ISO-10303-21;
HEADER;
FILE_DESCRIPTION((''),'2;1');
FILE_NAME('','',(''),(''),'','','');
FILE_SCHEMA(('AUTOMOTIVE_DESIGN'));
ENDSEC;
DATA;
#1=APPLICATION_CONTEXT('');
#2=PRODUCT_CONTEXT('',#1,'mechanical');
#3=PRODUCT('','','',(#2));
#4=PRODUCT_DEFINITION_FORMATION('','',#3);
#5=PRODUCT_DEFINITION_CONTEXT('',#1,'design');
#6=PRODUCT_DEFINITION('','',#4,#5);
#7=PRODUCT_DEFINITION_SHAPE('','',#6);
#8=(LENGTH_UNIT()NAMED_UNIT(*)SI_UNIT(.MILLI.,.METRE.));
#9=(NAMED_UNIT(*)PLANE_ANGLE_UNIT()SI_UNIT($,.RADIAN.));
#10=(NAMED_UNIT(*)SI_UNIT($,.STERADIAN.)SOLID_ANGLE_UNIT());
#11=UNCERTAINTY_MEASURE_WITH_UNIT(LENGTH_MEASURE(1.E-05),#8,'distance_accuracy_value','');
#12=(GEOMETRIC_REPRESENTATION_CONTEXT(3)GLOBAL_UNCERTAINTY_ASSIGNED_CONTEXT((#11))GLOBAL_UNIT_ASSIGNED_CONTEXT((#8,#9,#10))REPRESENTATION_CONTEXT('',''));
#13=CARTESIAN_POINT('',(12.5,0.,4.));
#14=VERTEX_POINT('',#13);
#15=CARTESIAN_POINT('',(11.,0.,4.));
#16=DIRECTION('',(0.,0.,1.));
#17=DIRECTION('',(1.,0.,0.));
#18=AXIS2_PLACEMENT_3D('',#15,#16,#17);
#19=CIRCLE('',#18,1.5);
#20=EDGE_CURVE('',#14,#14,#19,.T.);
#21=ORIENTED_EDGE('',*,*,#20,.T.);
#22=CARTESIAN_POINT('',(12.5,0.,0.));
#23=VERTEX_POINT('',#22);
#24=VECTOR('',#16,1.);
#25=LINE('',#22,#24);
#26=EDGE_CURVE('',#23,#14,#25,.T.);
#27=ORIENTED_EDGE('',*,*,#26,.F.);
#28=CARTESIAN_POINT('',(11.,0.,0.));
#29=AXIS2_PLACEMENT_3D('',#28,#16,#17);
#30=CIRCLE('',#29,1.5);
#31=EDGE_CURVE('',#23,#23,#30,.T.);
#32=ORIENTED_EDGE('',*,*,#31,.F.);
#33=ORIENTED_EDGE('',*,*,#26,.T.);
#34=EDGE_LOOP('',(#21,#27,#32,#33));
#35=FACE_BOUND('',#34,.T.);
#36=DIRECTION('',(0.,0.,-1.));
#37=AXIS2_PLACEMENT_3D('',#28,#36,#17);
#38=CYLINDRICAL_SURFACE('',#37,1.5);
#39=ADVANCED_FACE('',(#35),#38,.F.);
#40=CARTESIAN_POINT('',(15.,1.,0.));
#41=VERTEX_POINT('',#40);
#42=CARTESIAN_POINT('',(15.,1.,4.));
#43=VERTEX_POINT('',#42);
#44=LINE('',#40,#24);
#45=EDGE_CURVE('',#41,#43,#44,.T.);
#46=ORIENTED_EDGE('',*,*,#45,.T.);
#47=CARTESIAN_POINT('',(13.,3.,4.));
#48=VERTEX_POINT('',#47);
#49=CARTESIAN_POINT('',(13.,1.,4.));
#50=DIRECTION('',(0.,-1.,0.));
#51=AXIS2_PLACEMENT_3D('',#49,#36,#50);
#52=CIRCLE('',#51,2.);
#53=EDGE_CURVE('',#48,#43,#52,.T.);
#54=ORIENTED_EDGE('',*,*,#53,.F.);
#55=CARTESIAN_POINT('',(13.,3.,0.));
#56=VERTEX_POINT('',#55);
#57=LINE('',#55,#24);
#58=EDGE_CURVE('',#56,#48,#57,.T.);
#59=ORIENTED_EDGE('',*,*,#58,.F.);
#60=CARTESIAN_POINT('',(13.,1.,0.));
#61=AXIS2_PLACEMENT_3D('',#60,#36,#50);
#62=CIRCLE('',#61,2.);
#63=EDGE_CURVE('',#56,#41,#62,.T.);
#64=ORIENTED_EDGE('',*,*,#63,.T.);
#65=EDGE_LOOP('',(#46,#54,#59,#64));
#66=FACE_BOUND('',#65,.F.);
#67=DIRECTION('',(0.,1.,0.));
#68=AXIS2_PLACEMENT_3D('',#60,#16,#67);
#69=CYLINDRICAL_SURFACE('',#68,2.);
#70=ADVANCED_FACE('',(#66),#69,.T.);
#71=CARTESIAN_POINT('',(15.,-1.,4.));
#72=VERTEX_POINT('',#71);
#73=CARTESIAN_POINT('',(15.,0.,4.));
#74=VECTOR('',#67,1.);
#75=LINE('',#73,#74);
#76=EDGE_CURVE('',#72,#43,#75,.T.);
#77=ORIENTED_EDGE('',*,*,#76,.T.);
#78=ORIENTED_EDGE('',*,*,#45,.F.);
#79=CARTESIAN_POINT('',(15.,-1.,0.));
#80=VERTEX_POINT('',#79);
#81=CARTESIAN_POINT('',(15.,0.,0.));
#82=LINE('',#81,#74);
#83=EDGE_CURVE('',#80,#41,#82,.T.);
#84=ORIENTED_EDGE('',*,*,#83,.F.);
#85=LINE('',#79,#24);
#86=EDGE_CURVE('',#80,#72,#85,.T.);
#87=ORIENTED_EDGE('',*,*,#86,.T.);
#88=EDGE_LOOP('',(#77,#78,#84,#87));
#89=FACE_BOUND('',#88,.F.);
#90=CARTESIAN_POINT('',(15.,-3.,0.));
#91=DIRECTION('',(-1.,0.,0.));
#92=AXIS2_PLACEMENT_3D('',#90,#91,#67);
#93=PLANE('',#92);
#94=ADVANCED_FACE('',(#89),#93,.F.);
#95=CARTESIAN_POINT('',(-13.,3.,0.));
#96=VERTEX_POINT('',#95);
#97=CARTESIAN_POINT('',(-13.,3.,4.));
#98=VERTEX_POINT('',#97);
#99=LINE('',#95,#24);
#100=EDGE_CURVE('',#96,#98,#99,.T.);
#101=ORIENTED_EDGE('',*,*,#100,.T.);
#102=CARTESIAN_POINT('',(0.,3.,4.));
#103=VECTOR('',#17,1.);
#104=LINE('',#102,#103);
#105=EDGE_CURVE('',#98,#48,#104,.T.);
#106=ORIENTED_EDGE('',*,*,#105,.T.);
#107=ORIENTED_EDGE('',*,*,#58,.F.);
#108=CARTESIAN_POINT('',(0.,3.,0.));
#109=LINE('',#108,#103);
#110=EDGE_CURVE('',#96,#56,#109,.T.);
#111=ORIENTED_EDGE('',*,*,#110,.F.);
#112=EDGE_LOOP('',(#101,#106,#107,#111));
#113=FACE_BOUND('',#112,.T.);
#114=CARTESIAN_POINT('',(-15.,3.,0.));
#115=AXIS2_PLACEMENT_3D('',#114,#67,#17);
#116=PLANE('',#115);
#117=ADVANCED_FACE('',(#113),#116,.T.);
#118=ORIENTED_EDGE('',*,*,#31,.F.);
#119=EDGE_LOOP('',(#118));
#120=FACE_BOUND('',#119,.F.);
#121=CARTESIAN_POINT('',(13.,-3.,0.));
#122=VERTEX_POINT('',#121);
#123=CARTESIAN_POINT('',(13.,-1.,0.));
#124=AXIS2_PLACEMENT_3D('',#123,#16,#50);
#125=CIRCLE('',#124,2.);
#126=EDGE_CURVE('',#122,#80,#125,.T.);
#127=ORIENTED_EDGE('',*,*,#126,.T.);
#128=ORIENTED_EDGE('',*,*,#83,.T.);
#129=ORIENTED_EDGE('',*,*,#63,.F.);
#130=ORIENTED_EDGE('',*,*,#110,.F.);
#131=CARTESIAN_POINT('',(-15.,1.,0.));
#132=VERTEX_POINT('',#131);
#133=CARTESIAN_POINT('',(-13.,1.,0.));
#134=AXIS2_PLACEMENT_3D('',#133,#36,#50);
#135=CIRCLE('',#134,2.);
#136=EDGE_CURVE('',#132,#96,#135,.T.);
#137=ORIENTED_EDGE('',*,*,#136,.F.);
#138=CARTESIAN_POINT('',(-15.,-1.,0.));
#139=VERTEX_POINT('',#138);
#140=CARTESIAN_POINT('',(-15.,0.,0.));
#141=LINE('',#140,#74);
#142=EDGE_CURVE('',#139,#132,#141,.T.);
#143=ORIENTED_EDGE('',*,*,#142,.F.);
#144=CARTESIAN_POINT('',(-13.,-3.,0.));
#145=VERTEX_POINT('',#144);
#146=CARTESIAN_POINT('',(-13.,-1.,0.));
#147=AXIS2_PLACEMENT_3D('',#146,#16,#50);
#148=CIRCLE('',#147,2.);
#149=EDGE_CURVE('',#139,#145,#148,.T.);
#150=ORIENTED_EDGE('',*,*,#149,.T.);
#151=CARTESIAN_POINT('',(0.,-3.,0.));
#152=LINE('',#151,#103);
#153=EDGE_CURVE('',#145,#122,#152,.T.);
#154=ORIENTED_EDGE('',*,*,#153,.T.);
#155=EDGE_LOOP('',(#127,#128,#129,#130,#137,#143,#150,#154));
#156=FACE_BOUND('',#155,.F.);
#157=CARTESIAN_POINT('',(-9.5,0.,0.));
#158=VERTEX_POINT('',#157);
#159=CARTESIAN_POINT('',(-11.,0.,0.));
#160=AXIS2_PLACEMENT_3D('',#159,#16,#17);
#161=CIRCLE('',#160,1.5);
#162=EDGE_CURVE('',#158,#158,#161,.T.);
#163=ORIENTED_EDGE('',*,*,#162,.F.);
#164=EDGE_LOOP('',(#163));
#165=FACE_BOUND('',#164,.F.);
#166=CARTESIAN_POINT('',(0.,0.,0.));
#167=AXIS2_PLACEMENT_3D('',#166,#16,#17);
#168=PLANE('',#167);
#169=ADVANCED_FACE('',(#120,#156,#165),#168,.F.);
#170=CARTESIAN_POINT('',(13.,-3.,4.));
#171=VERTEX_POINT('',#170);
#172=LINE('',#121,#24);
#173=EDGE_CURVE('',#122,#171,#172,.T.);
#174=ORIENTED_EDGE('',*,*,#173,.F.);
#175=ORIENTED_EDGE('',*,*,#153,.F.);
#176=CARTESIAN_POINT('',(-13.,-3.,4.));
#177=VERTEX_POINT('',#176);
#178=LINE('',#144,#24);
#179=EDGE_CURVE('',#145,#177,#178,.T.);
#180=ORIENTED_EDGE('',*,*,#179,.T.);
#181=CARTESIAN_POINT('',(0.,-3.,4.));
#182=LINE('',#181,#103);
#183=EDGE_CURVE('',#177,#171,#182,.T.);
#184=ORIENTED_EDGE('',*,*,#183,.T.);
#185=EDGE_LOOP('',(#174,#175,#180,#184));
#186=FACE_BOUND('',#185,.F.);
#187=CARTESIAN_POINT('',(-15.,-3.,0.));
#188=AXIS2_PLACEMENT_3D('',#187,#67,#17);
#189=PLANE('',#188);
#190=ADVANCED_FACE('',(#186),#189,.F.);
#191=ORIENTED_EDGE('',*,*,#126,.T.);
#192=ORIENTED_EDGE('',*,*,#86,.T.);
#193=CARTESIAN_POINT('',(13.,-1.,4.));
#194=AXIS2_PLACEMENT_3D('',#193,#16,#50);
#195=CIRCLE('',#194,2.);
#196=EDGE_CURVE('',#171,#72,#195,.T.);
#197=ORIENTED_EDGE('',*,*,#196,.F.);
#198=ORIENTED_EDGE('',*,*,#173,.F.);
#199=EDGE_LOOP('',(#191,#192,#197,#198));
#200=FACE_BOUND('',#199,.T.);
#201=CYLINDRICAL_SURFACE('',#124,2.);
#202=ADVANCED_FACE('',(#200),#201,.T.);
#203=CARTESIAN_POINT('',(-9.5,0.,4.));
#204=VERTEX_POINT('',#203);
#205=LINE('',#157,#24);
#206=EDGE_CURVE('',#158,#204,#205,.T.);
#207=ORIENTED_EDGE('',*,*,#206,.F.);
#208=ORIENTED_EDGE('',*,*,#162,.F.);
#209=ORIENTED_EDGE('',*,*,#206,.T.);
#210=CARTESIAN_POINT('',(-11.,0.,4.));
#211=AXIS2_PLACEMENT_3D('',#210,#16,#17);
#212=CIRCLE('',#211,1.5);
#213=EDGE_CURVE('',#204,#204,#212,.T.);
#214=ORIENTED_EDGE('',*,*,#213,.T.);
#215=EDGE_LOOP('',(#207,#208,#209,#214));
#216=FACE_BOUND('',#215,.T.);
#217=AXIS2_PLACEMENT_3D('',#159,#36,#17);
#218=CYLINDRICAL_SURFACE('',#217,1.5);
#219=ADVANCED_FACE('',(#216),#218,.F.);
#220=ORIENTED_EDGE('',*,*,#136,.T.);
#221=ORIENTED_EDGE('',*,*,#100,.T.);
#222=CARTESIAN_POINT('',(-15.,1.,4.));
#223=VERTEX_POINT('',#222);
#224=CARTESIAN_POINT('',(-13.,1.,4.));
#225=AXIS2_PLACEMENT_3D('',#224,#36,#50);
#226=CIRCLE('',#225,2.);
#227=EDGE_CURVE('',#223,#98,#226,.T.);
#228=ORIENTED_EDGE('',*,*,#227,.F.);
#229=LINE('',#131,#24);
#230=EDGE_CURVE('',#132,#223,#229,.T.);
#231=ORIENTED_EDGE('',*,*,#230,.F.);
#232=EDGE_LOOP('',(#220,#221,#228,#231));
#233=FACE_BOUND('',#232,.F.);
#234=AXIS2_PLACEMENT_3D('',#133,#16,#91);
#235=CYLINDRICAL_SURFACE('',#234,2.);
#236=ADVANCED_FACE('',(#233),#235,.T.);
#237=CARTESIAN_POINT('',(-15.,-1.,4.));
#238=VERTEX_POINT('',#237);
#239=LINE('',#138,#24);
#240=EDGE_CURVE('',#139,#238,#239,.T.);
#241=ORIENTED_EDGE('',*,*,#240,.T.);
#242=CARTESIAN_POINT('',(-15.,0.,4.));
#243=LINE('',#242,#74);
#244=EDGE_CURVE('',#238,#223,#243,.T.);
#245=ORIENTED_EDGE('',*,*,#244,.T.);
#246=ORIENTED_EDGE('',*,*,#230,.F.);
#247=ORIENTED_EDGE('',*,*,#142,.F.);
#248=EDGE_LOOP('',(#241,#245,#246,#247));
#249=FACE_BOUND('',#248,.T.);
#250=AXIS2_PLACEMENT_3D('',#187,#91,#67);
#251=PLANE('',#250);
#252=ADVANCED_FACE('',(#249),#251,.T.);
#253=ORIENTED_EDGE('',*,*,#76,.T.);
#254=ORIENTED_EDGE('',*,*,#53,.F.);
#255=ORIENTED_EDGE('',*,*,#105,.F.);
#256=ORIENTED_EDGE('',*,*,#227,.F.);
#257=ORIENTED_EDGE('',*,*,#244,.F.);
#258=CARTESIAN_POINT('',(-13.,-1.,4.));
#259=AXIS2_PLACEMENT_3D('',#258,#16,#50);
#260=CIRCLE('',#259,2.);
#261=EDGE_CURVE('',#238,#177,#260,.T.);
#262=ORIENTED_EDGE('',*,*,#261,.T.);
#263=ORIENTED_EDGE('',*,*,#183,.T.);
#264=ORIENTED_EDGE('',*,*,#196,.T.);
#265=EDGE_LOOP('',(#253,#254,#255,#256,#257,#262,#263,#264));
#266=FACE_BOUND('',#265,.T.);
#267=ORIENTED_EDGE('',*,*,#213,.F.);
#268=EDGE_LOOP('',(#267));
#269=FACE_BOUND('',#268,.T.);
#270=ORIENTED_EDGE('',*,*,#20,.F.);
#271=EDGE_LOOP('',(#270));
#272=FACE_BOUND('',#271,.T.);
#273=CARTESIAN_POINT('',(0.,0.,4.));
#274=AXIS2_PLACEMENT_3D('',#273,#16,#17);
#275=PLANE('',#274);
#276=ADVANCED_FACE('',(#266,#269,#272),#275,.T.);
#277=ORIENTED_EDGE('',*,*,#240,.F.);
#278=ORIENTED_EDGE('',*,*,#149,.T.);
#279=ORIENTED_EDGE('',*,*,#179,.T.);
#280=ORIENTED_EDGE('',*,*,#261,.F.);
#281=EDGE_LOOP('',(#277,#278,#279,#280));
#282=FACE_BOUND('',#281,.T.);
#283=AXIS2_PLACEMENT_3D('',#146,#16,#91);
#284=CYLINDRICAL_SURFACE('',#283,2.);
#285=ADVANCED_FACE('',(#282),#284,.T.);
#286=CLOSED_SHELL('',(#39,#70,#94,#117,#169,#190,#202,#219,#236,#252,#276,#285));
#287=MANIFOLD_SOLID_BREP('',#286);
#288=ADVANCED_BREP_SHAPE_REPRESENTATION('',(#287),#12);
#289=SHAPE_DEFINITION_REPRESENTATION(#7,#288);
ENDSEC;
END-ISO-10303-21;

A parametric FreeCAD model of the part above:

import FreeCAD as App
import Part
import Sketcher


def edges_at(feature, points):
    """Names of the edges that pass closest to the given points."""
    edges = feature.Shape.Edges
    near = lambda p: min(range(len(edges)), key=lambda i: edges[i].distToShape(Part.Vertex(*p))[0])
    return sorted({f"Edge{near(p) + 1}" for p in points})


def add_polygon(sketch, points):
    """Adds a closed chain of lines whose ends are joined by coincident constraints."""
    first, n = sketch.GeometryCount, len(points)
    for a, b in zip(points, points[1:] + points[:1]):
        sketch.addGeometry(Part.LineSegment(App.Vector(*a, 0), App.Vector(*b, 0)), False)
    for i in range(n):
        sketch.addConstraint(Sketcher.Constraint("Coincident", first + i, 2, first + (i + 1) % n, 1))

doc = App.newDocument("Part")
body = doc.addObject("PartDesign::Body", "Body")

# Sketch on XY plane
sketch1 = body.newObject("Sketcher::SketchObject", "Sketch")
sketch1.AttachmentSupport = (doc.getObject("XY_Plane"), [""])
sketch1.MapMode = "FlatFace"
add_polygon(sketch1, [(-15, 3), (-15, -3), (15, -3), (15, 3)])  # lines 0-3
sketch1.addGeometry(Part.Circle(App.Vector(-11, 0, 0), App.Vector(0, 0, 1), 1.5), False)  # 4
sketch1.addGeometry(Part.Circle(App.Vector(11, 0, 0), App.Vector(0, 0, 1), 1.5), False)  # 5
sketch1.addConstraint(Sketcher.Constraint("Vertical", 0))
sketch1.addConstraint(Sketcher.Constraint("Horizontal", 1))
sketch1.addConstraint(Sketcher.Constraint("Vertical", 2))
sketch1.addConstraint(Sketcher.Constraint("Horizontal", 3))
sketch1.addConstraint(Sketcher.Constraint("Equal", 4, 5))
sketch1.addConstraint(Sketcher.Constraint("Symmetric", 4, 3, 5, 3, -1, 1))
sketch1.addConstraint(Sketcher.Constraint("Symmetric", 0, 2, 2, 2, -1, 1))
sketch1.addConstraint(Sketcher.Constraint("PointOnObject", 4, 3, -1))
sketch1.addConstraint(Sketcher.Constraint("Diameter", 4, 3.0))
sketch1.addConstraint(Sketcher.Constraint("DistanceX", 1, 1, 1, 2, 30.0))
sketch1.addConstraint(Sketcher.Constraint("DistanceY", 0, 2, 0, 1, 6.0))
sketch1.addConstraint(Sketcher.Constraint("DistanceX", 4, 3, -1, 1, 11.0))
pad1 = body.newObject("PartDesign::Pad", "Pad")
pad1.Profile = sketch1
pad1.Length = 4
doc.recompute()

fillet = body.newObject("PartDesign::Fillet", "Fillet")
fillet.Base = (pad1, edges_at(pad1, [
    (-15, 3, 2),
    (15, 3, 2),
    (15, -3, 2),
    (-15, -3, 2),
]))
fillet.Radius = 2

doc.recompute()
